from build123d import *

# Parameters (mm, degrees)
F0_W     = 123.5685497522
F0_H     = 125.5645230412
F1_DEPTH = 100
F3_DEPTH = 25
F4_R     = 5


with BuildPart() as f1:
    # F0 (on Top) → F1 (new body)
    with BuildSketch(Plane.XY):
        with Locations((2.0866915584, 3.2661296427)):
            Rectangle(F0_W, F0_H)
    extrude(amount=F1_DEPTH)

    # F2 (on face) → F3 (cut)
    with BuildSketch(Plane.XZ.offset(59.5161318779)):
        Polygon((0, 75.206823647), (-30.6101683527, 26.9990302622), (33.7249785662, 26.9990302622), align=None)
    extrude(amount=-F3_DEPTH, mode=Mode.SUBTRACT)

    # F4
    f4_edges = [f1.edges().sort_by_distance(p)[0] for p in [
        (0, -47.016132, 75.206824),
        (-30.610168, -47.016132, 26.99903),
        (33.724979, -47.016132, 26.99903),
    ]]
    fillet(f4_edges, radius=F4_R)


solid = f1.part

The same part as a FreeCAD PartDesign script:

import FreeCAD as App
import Part
import Sketcher
from FreeCAD import Vector
Q = App.Units.Quantity


def edges_at(feature, points):
    """Names of the edges that pass closest to the given points."""
    edges = feature.Shape.Edges
    near = lambda p: min(range(len(edges)), key=lambda i: edges[i].distToShape(Part.Vertex(*p))[0])
    return sorted({f"Edge{near(p) + 1}" for p in points})


def add_polygon(sketch, points):
    """Adds a closed chain of lines whose ends are joined by coincident constraints."""
    first, n = sketch.GeometryCount, len(points)
    for a, b in zip(points, points[1:] + points[:1]):
        sketch.addGeometry(Part.LineSegment(App.Vector(*a, 0), App.Vector(*b, 0)), False)
    for i in range(n):
        sketch.addConstraint(Sketcher.Constraint("Coincident", first + i, 2, first + (i + 1) % n, 1))

doc = App.newDocument("Part")
body = doc.addObject("PartDesign::Body", "Body")

sketch1 = doc.addObject("Sketcher::SketchObject", "Sketch")
body.addObject(sketch1)
sketch1.AttachmentSupport = (doc.XY_Plane, [""])
sketch1.MapMode = "FlatFace"
add_polygon(sketch1, [(-60, 66), (-60, -60), (64, -60), (64, 66)])
sketch1.addConstraint([
    Sketcher.Constraint("Vertical", 0),
    Sketcher.Constraint("Horizontal", 1),
    Sketcher.Constraint("Vertical", 2),
    Sketcher.Constraint("Horizontal", 3),
    Sketcher.Constraint("DistanceX", 1, 1, 1, 2, Q("123.56855 mm")),
    Sketcher.Constraint("DistanceY", 0, 2, 0, 1, Q("125.564523 mm")),
    Sketcher.Constraint("DistanceY", 0, 2, -1, 1, Q("59.516132 mm")),
    Sketcher.Constraint("DistanceX", 0, 2, -1, 1, Q("59.697583 mm")),
])
pad1 = doc.addObject("PartDesign::Pad", "Pad")
body.addObject(pad1)
pad1.Profile = sketch1
pad1.Length = 100

sketch2 = doc.addObject("Sketcher::SketchObject", "Sketch001")
body.addObject(sketch2)
sketch2.AttachmentSupport = (doc.XZ_Plane, [""])
sketch2.MapMode = "FlatFace"
sketch2.AttachmentOffset = App.Placement(Vector(0, 0, 59.516132), App.Rotation())
add_polygon(sketch2, [(0, 75), (-31, 27), (34, 27)])
sketch2.addConstraint([
    Sketcher.Constraint("Horizontal", 1),
    Sketcher.Constraint("PointOnObject", 2, 2, -2),
    Sketcher.Constraint("Distance", 2, Q("58.833371 mm")),
    Sketcher.Constraint("DistanceX", 1, 1, 1, 2, Q("64.335147 mm")),
    Sketcher.Constraint("DistanceX", 0, 2, -1, 1, Q("30.610168 mm")),
    Sketcher.Constraint("DistanceY", -1, 1, 0, 2, Q("26.99903 mm")),
])
pocket1 = doc.addObject("PartDesign::Pocket", "Pocket")
body.addObject(pocket1)
pocket1.Profile = sketch2
pocket1.Length = 25
doc.recompute()

fillet = doc.addObject("PartDesign::Fillet", "Fillet")
body.addObject(fillet)
fillet.Base = (pocket1, edges_at(pocket1, [(0, -47.016, 75.207), (-30.61, -47.016, 26.999), (33.725, -47.016, 26.999)]))
fillet.Radius = 5

doc.recompute()
